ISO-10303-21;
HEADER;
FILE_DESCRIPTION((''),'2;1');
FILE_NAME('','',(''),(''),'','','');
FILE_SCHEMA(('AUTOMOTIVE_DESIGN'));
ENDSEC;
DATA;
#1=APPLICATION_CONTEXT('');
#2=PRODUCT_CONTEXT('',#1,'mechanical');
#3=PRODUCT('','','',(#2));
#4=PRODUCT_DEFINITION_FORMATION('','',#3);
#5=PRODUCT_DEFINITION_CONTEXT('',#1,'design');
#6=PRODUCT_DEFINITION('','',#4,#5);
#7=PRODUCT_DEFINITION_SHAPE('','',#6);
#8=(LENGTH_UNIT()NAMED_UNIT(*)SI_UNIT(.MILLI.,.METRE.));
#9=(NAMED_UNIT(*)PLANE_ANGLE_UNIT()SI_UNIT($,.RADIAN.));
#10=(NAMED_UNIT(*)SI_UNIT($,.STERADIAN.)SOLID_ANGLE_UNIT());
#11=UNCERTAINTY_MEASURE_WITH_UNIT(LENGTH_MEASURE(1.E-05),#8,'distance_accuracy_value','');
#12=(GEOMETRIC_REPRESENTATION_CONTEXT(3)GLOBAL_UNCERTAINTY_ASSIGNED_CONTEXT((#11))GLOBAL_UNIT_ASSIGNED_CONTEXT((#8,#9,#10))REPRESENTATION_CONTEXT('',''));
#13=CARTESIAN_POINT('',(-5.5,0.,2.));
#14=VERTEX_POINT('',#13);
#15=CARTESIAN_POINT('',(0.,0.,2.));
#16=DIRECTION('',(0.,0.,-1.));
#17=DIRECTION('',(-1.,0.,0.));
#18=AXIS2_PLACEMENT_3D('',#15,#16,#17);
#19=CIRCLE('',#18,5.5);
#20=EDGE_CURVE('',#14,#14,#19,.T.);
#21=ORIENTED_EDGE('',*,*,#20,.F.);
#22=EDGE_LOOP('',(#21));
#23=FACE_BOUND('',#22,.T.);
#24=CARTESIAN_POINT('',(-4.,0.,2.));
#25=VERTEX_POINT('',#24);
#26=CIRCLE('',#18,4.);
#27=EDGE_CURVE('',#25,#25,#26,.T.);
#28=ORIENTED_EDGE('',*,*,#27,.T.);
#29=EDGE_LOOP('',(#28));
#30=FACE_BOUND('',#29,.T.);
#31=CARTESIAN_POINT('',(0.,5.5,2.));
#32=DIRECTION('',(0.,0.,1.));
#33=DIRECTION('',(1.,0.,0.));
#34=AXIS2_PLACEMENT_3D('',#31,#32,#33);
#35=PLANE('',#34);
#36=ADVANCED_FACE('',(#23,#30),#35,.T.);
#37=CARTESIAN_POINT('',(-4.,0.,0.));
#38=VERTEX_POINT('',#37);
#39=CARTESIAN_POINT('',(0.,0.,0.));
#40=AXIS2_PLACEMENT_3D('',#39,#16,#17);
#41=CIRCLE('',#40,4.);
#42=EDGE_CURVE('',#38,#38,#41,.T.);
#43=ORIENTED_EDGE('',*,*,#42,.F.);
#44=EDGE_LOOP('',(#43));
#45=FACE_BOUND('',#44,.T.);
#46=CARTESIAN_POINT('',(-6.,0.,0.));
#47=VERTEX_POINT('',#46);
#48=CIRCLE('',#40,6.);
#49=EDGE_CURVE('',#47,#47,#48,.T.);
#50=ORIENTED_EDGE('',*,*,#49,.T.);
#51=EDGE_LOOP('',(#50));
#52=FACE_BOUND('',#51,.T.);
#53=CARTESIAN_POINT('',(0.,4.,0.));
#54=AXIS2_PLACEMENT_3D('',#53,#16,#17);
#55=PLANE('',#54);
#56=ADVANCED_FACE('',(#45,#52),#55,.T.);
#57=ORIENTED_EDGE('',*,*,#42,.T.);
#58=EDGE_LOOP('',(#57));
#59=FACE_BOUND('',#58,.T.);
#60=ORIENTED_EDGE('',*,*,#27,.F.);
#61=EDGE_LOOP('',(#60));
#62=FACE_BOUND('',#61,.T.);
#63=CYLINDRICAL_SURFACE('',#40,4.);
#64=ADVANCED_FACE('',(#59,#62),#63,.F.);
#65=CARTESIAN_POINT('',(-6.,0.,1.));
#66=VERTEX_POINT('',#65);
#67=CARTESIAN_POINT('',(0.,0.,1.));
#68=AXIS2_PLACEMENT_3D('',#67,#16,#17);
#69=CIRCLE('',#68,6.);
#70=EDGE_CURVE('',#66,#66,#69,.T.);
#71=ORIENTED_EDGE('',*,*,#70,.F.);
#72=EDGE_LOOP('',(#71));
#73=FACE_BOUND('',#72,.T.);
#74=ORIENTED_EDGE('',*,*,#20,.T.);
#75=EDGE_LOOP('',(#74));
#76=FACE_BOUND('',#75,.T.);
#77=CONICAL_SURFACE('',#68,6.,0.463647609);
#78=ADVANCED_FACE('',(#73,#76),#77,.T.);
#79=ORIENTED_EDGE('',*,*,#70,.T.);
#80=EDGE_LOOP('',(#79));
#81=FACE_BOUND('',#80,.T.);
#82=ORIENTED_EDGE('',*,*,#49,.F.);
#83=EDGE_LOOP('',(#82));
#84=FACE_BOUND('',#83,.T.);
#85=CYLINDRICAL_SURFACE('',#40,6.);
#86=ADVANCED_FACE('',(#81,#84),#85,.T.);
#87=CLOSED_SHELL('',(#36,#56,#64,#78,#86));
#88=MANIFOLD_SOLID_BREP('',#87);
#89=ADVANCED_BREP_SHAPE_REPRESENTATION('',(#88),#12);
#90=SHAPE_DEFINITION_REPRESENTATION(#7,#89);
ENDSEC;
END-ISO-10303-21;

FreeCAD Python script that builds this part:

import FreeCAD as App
import Part
import Sketcher

V = App.Vector

doc = App.newDocument("Part")
params = doc.addObject("Spreadsheet::Sheet", "Params")
for row, (alias, value) in enumerate([
    ("sketch1_width", "2 mm"),
    ("sketch1_height", "1 mm"),
    ("sketch1_width2", "1.5 mm"),
    ("revolution_angle", "360 deg"),
], start=1):
    params.set(f"A{row}", alias)
    params.set(f"B{row}", "=" + value)
    params.setAlias(f"B{row}", alias)

body = doc.addObject("PartDesign::Body", "Body")

# Sketch on YZ plane
sketch1 = body.newObject("Sketcher::SketchObject", "Sketch")
sketch1.AttachmentSupport = (doc.getObject("YZ_Plane"), [""])
sketch1.MapMode = "FlatFace"
sketch1.addGeometry([
    Part.LineSegment(V(4, 0, 0), V(6, 0, 0)),  # 0
    Part.LineSegment(V(6, 0, 0), V(6, 1, 0)),  # 1
    Part.LineSegment(V(6, 1, 0), V(5.5, 2, 0)),  # 2
    Part.LineSegment(V(5.5, 2, 0), V(4, 2, 0)),  # 3
    Part.LineSegment(V(4, 2, 0), V(4, 0, 0)),  # 4
], False)
sketch1.addConstraint([
    Sketcher.Constraint("Coincident", 0, 2, 1, 1),
    Sketcher.Constraint("Coincident", 1, 2, 2, 1),
    Sketcher.Constraint("Coincident", 2, 2, 3, 1),
    Sketcher.Constraint("Coincident", 3, 2, 4, 1),
    Sketcher.Constraint("Coincident", 4, 2, 0, 1),
    Sketcher.Constraint("Horizontal", 0),
    Sketcher.Constraint("Vertical", 1),
    Sketcher.Constraint("Horizontal", 3),
    Sketcher.Constraint("Vertical", 4),
    Sketcher.Constraint("PointOnObject", 0, 2, -1),
    Sketcher.Constraint("Equal", 0, 4),
    Sketcher.Constraint("DistanceX", 0, 1, 0, 2, 2.0),
    Sketcher.Constraint("DistanceY", 1, 1, 1, 2, 1.0),
    Sketcher.Constraint("DistanceX", 3, 2, 3, 1, 1.5),
    Sketcher.Constraint("DistanceX", -1, 1, 0, 2, 6.0),
])
sketch1.setExpression("Constraints[11]", "Params.sketch1_width")
sketch1.setExpression("Constraints[12]", "Params.sketch1_height")
sketch1.setExpression("Constraints[13]", "Params.sketch1_width2")
revolution = body.newObject("PartDesign::Revolution", "Revolution")
revolution.Profile = sketch1
revolution.ReferenceAxis = (sketch1, ["V_Axis"])
revolution.setExpression("Angle", "Params.revolution_angle")

doc.recompute()
